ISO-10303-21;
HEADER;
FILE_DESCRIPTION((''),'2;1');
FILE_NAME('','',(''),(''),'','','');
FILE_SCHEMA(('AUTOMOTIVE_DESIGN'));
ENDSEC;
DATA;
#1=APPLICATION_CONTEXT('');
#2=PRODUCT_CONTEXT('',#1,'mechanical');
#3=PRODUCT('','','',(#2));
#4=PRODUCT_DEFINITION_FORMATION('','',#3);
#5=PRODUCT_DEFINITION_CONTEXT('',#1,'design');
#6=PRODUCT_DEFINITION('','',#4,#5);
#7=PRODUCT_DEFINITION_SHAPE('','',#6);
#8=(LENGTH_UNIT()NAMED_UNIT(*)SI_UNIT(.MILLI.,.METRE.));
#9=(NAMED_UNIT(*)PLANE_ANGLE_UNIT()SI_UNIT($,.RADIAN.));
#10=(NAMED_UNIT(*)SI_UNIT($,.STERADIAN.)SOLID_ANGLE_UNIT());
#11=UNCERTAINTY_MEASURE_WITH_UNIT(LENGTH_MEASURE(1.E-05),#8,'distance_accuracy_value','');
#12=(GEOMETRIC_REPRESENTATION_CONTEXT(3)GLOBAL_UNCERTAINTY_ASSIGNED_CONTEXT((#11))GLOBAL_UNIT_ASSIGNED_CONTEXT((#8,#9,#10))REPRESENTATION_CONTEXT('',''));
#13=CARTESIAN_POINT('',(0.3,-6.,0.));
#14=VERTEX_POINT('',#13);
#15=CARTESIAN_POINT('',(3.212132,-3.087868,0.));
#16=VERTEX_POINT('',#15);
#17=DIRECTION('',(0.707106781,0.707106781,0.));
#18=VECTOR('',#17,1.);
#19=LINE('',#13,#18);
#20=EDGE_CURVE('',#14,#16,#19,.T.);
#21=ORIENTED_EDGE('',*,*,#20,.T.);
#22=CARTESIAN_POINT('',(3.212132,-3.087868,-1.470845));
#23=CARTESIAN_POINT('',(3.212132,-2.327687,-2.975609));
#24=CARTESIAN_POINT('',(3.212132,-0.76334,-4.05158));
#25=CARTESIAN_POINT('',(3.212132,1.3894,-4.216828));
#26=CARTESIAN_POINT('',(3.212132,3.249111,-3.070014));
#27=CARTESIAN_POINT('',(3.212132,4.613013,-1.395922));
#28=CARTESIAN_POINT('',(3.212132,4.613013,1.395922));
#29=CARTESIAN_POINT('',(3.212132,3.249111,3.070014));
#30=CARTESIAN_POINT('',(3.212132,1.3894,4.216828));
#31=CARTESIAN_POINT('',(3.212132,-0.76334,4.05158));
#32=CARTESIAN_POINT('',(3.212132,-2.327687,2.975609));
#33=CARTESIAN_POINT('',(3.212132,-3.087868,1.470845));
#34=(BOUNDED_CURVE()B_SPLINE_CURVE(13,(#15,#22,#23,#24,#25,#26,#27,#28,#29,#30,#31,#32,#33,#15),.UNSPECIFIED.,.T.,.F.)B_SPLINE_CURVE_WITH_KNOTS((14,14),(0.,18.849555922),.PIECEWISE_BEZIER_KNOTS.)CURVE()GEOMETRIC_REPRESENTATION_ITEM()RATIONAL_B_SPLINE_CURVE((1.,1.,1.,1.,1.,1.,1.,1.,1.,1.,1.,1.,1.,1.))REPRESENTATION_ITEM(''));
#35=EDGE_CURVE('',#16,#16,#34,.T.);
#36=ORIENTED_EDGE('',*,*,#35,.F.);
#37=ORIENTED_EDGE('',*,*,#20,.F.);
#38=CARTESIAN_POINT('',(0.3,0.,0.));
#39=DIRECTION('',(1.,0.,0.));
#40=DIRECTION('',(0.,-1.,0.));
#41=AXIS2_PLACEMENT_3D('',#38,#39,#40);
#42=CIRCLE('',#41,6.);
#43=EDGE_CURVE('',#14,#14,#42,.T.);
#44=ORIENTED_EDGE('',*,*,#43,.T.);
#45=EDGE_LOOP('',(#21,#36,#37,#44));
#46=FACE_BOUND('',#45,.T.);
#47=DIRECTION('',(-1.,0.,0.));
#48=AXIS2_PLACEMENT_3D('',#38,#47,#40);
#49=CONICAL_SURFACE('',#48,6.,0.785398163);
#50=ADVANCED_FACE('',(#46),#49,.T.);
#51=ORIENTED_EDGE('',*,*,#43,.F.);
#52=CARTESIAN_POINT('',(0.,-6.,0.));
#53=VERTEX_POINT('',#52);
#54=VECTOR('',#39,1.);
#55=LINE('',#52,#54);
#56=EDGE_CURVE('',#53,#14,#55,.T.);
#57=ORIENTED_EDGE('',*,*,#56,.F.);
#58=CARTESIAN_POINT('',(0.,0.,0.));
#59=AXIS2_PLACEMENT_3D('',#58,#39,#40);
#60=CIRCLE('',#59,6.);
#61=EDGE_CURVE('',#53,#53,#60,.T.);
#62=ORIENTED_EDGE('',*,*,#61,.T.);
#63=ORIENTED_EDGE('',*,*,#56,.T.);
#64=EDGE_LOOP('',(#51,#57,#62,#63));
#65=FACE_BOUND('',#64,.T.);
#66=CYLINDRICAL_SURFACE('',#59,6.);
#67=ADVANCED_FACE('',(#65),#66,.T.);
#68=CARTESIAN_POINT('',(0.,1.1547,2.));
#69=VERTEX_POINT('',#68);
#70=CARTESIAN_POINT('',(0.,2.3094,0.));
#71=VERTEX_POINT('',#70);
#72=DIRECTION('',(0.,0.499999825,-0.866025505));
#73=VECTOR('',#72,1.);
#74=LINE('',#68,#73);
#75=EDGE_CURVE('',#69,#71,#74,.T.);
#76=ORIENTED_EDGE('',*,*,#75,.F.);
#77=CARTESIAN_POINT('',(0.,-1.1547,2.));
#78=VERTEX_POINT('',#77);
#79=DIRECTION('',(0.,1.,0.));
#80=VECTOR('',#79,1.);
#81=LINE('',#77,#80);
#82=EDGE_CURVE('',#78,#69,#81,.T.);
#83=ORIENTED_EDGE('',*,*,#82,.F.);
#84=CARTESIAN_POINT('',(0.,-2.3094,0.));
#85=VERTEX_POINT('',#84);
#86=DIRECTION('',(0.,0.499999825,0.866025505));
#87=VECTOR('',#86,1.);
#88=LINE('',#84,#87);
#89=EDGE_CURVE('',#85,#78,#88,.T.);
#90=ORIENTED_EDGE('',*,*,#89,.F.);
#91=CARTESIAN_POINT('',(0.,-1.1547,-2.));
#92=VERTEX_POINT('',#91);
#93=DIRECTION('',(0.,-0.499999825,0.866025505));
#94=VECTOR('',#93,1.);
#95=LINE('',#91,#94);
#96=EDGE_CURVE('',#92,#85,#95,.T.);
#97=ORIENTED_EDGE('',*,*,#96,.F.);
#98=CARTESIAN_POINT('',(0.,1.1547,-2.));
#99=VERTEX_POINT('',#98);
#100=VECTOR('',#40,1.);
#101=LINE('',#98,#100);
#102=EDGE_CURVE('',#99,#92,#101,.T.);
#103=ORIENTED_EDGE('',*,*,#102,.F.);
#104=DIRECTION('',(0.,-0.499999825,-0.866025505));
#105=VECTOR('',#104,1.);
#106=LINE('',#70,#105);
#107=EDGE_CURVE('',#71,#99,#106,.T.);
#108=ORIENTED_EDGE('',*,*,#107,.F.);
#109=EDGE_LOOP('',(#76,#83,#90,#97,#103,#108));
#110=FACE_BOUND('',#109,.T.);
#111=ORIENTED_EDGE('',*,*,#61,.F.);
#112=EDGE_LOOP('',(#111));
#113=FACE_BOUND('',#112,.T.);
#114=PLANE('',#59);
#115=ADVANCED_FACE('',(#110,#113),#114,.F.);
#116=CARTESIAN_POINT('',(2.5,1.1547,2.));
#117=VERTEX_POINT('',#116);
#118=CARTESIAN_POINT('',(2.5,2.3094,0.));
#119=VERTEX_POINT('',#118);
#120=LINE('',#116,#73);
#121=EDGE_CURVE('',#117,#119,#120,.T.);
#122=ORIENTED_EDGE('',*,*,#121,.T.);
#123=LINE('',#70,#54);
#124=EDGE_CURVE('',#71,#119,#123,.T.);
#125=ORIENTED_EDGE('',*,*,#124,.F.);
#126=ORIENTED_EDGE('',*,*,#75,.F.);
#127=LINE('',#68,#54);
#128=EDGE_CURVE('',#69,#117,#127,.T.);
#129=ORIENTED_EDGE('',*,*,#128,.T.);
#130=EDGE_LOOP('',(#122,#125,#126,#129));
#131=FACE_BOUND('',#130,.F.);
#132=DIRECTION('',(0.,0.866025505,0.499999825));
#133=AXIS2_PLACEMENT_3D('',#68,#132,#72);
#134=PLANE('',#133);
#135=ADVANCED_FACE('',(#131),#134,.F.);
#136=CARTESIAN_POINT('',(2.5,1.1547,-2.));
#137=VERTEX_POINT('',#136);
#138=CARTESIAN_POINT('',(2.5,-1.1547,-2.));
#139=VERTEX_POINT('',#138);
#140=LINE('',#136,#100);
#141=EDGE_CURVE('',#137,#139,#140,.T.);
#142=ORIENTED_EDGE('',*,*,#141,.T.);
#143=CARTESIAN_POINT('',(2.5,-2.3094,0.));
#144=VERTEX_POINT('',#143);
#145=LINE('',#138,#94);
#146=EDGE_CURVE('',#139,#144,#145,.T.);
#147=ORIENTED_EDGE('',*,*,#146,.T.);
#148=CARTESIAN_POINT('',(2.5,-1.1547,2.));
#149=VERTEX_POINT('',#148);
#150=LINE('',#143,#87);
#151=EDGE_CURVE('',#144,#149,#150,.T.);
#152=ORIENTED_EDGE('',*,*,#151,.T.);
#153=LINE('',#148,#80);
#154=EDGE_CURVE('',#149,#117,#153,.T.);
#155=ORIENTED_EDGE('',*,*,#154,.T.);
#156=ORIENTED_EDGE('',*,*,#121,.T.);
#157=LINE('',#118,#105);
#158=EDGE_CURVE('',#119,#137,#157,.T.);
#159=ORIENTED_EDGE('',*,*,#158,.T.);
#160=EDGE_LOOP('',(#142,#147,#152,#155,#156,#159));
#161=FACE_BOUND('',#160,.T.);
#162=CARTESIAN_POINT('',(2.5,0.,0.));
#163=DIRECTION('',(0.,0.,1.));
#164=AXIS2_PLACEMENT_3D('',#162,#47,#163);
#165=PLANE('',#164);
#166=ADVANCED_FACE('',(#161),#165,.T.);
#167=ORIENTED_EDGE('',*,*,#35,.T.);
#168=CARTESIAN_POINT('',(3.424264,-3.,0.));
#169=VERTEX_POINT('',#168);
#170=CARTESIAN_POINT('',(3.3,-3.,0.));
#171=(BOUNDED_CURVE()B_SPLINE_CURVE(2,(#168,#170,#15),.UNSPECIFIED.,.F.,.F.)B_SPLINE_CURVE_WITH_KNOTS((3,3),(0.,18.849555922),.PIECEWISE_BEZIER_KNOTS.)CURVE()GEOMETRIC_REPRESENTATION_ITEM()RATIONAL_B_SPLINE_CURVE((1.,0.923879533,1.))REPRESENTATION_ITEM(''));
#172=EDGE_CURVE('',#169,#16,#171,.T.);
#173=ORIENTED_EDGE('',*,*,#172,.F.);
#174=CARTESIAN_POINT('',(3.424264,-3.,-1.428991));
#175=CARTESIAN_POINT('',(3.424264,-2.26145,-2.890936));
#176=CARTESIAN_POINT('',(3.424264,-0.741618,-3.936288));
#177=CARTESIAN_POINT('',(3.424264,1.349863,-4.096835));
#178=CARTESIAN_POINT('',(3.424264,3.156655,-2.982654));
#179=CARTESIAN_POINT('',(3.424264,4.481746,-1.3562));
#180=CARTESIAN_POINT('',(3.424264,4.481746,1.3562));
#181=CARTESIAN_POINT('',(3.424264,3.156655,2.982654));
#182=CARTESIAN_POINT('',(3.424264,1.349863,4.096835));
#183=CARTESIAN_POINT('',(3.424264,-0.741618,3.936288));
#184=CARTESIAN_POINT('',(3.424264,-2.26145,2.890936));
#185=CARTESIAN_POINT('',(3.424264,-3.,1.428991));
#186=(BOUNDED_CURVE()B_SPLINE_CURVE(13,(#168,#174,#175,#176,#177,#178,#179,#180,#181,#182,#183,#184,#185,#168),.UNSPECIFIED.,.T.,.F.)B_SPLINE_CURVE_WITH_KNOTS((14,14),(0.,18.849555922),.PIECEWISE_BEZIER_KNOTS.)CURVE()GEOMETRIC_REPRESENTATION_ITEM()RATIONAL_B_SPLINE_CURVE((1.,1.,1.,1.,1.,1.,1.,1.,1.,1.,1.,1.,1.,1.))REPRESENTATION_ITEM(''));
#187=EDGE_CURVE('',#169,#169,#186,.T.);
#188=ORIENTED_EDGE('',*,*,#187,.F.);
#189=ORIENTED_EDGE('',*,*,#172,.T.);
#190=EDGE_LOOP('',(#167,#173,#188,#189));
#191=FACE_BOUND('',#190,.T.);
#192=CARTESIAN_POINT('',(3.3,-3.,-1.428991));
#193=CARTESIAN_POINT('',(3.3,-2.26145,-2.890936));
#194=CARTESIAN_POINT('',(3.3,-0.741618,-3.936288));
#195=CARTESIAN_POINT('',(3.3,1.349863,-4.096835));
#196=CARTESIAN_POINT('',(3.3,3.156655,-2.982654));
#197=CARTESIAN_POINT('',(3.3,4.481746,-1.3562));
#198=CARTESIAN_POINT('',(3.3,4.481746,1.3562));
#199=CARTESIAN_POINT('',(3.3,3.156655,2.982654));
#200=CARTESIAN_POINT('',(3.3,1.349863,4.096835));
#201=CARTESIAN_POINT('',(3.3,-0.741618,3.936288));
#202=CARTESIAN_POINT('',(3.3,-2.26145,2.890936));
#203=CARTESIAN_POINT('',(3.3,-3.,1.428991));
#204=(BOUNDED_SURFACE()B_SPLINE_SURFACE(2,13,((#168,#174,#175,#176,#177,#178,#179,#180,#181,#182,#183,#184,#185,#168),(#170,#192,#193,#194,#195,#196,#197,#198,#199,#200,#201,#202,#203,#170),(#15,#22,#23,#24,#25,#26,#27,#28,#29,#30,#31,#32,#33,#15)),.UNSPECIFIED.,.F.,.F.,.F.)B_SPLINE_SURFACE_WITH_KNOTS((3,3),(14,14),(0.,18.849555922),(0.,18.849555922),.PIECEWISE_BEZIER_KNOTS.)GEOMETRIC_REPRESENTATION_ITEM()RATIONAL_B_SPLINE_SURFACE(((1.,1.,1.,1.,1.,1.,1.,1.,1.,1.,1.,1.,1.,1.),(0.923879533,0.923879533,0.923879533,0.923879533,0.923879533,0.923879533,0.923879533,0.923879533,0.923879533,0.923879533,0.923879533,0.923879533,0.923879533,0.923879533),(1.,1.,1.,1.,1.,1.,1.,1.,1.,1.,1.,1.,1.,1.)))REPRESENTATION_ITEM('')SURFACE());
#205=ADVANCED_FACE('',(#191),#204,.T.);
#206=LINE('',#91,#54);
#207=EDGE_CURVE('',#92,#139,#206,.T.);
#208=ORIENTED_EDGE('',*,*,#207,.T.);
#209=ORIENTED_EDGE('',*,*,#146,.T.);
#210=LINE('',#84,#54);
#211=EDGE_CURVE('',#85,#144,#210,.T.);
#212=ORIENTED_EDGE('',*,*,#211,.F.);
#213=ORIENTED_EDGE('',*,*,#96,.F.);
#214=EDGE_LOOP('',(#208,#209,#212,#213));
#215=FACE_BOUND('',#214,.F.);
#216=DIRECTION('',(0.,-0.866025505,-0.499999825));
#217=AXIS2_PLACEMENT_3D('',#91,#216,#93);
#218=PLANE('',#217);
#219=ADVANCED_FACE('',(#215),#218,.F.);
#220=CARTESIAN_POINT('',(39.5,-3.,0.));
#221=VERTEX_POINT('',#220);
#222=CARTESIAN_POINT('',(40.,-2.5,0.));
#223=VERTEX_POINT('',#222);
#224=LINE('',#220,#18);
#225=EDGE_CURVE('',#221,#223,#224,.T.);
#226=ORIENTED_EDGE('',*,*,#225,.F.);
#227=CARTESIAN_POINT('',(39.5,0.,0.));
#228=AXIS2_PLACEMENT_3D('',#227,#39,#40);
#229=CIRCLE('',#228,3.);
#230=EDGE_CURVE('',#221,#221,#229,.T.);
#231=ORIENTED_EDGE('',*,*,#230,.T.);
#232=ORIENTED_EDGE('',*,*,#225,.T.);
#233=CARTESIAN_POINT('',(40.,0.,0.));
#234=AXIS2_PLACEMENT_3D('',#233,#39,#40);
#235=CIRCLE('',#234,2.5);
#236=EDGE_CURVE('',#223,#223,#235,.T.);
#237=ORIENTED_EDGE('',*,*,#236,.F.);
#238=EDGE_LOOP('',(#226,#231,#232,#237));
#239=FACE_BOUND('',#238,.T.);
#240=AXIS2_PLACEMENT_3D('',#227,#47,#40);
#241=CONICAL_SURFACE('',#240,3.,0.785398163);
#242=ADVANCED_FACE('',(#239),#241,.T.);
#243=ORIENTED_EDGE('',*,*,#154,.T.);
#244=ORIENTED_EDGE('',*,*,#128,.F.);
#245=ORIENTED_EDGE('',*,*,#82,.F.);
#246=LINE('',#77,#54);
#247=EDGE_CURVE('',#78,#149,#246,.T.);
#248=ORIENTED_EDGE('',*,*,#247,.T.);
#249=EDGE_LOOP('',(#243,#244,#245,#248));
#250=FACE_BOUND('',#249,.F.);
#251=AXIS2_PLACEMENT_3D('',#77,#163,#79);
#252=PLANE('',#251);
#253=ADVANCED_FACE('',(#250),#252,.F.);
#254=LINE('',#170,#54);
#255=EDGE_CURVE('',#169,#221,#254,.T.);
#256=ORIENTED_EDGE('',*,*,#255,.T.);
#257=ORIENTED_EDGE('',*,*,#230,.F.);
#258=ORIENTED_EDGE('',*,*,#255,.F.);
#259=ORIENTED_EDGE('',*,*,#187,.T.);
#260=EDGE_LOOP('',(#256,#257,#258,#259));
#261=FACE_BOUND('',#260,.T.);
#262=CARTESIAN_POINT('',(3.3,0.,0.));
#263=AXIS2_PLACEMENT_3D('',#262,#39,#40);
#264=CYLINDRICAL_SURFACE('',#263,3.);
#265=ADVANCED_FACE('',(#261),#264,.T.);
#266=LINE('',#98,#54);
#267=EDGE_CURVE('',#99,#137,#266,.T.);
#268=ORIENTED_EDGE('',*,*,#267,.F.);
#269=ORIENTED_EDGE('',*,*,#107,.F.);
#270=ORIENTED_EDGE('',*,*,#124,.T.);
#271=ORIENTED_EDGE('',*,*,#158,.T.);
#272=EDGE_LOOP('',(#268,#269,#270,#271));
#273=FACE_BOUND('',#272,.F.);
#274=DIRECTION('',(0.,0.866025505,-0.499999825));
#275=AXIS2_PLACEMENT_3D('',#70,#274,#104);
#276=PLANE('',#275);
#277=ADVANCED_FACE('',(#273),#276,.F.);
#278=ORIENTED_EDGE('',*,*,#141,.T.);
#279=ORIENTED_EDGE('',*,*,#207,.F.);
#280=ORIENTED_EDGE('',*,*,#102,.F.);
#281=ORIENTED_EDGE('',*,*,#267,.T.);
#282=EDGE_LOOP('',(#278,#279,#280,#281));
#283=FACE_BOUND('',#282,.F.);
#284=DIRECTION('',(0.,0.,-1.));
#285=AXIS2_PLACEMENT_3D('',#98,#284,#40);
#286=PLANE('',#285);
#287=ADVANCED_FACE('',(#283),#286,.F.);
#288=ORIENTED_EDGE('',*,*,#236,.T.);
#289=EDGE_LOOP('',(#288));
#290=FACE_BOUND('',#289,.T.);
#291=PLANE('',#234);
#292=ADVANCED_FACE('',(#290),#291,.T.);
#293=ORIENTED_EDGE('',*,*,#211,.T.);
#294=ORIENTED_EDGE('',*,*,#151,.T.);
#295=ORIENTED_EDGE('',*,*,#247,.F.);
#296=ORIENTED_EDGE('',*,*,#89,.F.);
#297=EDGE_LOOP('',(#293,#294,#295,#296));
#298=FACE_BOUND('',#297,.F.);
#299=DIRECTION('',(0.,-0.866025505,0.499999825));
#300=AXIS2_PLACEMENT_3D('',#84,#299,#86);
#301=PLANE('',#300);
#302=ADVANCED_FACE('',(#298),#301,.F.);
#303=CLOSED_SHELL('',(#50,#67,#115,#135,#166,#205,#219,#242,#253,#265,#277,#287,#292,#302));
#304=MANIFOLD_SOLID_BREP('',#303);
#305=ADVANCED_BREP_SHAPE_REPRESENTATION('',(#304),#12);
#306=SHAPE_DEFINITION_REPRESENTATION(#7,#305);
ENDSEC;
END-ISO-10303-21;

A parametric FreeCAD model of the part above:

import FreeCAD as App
import Part
import Sketcher

V = App.Vector
Q = App.Units.Quantity


def edges_at(feature, points):
    """Names of the edges that pass closest to the given points."""
    edges = feature.Shape.Edges
    near = lambda p: min(range(len(edges)), key=lambda i: edges[i].distToShape(Part.Vertex(*p))[0])
    return sorted({f"Edge{near(p) + 1}" for p in points})


def add_polygon(sketch, points):
    """Adds a closed chain of lines whose ends are joined by coincident constraints."""
    first, n = sketch.GeometryCount, len(points)
    for a, b in zip(points, points[1:] + points[:1]):
        sketch.addGeometry(Part.LineSegment(App.Vector(*a, 0), App.Vector(*b, 0)), False)
    for i in range(n):
        sketch.addConstraint(Sketcher.Constraint("Coincident", first + i, 2, first + (i + 1) % n, 1))

doc = App.newDocument("Part")
body = doc.addObject("PartDesign::Body", "Body")

sketch1 = body.newObject("Sketcher::SketchObject", "Sketch")
sketch1.AttachmentSupport = (doc.getObject("XY_Plane"), [""])
sketch1.MapMode = "FlatFace"
add_polygon(sketch1, [(3.3, -3), (40, -3), (40, 0), (0, 0), (0, -6), (0.3, -6)])
sketch1.addConstraint(Sketcher.Constraint("Horizontal", 0))
sketch1.addConstraint(Sketcher.Constraint("Vertical", 1))
sketch1.addConstraint(Sketcher.Constraint("Horizontal", 2))
sketch1.addConstraint(Sketcher.Constraint("Vertical", 3))
sketch1.addConstraint(Sketcher.Constraint("Horizontal", 4))
sketch1.addConstraint(Sketcher.Constraint("Coincident", 2, 2, -1, 1))
sketch1.addConstraint(Sketcher.Constraint("DistanceX", 2, 2, 2, 1, Q("40 mm")))
sketch1.addConstraint(Sketcher.Constraint("DistanceY", 1, 1, 1, 2, Q("3 mm")))
sketch1.addConstraint(Sketcher.Constraint("DistanceY", 3, 2, 3, 1, Q("6 mm")))
sketch1.addConstraint(Sketcher.Constraint("Angle", 5, Q("45 deg")))
sketch1.addConstraint(Sketcher.Constraint("DistanceX", 4, 1, 4, 2, Q("0.3 mm")))
revolution = body.newObject("PartDesign::Revolution", "Revolution")
revolution.Profile = sketch1
revolution.ReferenceAxis = (sketch1, ["H_Axis"])
revolution.Angle = 360

sketch2 = body.newObject("Sketcher::SketchObject", "Sketch001")
sketch2.AttachmentSupport = (doc.getObject("YZ_Plane"), [""])
sketch2.MapMode = "FlatFace"
add_polygon(sketch2, [(2.3, 0), (1.2, -2), (-1.2, -2), (-2.3, 0), (-1.2, 2), (1.2, 2)])
sketch2.addConstraint(Sketcher.Constraint("Horizontal", 1))
sketch2.addConstraint(Sketcher.Constraint("Horizontal", 4))
sketch2.addConstraint(Sketcher.Constraint("Symmetric", 0, 2, 3, 2, -1, 1))
sketch2.addConstraint(Sketcher.Constraint("Symmetric", 2, 2, 5, 2, -1, 1))
sketch2.addConstraint(Sketcher.Constraint("PointOnObject", 2, 2, -1))
sketch2.addConstraint(Sketcher.Constraint("Parallel", 2, 5))
sketch2.addConstraint(Sketcher.Constraint("Vertical", 1, 2, 3, 2))
sketch2.addConstraint(Sketcher.Constraint("Angle", 0, Q("-120 deg")))
sketch2.addConstraint(Sketcher.Constraint("DistanceY", 1, 2, 3, 2, Q("4 mm")))
sketch2.addConstraint(Sketcher.Constraint("DistanceX", 1, 2, 1, 1, Q("2.3094 mm")))
pocket1 = body.newObject("PartDesign::Pocket", "Pocket")
pocket1.Profile = sketch2
pocket1.Length = 2.5
pocket1.Reversed = True
doc.recompute()

fillet = body.newObject("PartDesign::Fillet", "Fillet")
fillet.Base = (pocket1, edges_at(pocket1, [(3.3, 3, 0)]))
fillet.Radius = 0.3
doc.recompute()

chamfer = body.newObject("PartDesign::Chamfer", "Chamfer")
chamfer.Base = (fillet, edges_at(fillet, [(40, 3, 0)]))
chamfer.Size = 0.5

doc.recompute()
